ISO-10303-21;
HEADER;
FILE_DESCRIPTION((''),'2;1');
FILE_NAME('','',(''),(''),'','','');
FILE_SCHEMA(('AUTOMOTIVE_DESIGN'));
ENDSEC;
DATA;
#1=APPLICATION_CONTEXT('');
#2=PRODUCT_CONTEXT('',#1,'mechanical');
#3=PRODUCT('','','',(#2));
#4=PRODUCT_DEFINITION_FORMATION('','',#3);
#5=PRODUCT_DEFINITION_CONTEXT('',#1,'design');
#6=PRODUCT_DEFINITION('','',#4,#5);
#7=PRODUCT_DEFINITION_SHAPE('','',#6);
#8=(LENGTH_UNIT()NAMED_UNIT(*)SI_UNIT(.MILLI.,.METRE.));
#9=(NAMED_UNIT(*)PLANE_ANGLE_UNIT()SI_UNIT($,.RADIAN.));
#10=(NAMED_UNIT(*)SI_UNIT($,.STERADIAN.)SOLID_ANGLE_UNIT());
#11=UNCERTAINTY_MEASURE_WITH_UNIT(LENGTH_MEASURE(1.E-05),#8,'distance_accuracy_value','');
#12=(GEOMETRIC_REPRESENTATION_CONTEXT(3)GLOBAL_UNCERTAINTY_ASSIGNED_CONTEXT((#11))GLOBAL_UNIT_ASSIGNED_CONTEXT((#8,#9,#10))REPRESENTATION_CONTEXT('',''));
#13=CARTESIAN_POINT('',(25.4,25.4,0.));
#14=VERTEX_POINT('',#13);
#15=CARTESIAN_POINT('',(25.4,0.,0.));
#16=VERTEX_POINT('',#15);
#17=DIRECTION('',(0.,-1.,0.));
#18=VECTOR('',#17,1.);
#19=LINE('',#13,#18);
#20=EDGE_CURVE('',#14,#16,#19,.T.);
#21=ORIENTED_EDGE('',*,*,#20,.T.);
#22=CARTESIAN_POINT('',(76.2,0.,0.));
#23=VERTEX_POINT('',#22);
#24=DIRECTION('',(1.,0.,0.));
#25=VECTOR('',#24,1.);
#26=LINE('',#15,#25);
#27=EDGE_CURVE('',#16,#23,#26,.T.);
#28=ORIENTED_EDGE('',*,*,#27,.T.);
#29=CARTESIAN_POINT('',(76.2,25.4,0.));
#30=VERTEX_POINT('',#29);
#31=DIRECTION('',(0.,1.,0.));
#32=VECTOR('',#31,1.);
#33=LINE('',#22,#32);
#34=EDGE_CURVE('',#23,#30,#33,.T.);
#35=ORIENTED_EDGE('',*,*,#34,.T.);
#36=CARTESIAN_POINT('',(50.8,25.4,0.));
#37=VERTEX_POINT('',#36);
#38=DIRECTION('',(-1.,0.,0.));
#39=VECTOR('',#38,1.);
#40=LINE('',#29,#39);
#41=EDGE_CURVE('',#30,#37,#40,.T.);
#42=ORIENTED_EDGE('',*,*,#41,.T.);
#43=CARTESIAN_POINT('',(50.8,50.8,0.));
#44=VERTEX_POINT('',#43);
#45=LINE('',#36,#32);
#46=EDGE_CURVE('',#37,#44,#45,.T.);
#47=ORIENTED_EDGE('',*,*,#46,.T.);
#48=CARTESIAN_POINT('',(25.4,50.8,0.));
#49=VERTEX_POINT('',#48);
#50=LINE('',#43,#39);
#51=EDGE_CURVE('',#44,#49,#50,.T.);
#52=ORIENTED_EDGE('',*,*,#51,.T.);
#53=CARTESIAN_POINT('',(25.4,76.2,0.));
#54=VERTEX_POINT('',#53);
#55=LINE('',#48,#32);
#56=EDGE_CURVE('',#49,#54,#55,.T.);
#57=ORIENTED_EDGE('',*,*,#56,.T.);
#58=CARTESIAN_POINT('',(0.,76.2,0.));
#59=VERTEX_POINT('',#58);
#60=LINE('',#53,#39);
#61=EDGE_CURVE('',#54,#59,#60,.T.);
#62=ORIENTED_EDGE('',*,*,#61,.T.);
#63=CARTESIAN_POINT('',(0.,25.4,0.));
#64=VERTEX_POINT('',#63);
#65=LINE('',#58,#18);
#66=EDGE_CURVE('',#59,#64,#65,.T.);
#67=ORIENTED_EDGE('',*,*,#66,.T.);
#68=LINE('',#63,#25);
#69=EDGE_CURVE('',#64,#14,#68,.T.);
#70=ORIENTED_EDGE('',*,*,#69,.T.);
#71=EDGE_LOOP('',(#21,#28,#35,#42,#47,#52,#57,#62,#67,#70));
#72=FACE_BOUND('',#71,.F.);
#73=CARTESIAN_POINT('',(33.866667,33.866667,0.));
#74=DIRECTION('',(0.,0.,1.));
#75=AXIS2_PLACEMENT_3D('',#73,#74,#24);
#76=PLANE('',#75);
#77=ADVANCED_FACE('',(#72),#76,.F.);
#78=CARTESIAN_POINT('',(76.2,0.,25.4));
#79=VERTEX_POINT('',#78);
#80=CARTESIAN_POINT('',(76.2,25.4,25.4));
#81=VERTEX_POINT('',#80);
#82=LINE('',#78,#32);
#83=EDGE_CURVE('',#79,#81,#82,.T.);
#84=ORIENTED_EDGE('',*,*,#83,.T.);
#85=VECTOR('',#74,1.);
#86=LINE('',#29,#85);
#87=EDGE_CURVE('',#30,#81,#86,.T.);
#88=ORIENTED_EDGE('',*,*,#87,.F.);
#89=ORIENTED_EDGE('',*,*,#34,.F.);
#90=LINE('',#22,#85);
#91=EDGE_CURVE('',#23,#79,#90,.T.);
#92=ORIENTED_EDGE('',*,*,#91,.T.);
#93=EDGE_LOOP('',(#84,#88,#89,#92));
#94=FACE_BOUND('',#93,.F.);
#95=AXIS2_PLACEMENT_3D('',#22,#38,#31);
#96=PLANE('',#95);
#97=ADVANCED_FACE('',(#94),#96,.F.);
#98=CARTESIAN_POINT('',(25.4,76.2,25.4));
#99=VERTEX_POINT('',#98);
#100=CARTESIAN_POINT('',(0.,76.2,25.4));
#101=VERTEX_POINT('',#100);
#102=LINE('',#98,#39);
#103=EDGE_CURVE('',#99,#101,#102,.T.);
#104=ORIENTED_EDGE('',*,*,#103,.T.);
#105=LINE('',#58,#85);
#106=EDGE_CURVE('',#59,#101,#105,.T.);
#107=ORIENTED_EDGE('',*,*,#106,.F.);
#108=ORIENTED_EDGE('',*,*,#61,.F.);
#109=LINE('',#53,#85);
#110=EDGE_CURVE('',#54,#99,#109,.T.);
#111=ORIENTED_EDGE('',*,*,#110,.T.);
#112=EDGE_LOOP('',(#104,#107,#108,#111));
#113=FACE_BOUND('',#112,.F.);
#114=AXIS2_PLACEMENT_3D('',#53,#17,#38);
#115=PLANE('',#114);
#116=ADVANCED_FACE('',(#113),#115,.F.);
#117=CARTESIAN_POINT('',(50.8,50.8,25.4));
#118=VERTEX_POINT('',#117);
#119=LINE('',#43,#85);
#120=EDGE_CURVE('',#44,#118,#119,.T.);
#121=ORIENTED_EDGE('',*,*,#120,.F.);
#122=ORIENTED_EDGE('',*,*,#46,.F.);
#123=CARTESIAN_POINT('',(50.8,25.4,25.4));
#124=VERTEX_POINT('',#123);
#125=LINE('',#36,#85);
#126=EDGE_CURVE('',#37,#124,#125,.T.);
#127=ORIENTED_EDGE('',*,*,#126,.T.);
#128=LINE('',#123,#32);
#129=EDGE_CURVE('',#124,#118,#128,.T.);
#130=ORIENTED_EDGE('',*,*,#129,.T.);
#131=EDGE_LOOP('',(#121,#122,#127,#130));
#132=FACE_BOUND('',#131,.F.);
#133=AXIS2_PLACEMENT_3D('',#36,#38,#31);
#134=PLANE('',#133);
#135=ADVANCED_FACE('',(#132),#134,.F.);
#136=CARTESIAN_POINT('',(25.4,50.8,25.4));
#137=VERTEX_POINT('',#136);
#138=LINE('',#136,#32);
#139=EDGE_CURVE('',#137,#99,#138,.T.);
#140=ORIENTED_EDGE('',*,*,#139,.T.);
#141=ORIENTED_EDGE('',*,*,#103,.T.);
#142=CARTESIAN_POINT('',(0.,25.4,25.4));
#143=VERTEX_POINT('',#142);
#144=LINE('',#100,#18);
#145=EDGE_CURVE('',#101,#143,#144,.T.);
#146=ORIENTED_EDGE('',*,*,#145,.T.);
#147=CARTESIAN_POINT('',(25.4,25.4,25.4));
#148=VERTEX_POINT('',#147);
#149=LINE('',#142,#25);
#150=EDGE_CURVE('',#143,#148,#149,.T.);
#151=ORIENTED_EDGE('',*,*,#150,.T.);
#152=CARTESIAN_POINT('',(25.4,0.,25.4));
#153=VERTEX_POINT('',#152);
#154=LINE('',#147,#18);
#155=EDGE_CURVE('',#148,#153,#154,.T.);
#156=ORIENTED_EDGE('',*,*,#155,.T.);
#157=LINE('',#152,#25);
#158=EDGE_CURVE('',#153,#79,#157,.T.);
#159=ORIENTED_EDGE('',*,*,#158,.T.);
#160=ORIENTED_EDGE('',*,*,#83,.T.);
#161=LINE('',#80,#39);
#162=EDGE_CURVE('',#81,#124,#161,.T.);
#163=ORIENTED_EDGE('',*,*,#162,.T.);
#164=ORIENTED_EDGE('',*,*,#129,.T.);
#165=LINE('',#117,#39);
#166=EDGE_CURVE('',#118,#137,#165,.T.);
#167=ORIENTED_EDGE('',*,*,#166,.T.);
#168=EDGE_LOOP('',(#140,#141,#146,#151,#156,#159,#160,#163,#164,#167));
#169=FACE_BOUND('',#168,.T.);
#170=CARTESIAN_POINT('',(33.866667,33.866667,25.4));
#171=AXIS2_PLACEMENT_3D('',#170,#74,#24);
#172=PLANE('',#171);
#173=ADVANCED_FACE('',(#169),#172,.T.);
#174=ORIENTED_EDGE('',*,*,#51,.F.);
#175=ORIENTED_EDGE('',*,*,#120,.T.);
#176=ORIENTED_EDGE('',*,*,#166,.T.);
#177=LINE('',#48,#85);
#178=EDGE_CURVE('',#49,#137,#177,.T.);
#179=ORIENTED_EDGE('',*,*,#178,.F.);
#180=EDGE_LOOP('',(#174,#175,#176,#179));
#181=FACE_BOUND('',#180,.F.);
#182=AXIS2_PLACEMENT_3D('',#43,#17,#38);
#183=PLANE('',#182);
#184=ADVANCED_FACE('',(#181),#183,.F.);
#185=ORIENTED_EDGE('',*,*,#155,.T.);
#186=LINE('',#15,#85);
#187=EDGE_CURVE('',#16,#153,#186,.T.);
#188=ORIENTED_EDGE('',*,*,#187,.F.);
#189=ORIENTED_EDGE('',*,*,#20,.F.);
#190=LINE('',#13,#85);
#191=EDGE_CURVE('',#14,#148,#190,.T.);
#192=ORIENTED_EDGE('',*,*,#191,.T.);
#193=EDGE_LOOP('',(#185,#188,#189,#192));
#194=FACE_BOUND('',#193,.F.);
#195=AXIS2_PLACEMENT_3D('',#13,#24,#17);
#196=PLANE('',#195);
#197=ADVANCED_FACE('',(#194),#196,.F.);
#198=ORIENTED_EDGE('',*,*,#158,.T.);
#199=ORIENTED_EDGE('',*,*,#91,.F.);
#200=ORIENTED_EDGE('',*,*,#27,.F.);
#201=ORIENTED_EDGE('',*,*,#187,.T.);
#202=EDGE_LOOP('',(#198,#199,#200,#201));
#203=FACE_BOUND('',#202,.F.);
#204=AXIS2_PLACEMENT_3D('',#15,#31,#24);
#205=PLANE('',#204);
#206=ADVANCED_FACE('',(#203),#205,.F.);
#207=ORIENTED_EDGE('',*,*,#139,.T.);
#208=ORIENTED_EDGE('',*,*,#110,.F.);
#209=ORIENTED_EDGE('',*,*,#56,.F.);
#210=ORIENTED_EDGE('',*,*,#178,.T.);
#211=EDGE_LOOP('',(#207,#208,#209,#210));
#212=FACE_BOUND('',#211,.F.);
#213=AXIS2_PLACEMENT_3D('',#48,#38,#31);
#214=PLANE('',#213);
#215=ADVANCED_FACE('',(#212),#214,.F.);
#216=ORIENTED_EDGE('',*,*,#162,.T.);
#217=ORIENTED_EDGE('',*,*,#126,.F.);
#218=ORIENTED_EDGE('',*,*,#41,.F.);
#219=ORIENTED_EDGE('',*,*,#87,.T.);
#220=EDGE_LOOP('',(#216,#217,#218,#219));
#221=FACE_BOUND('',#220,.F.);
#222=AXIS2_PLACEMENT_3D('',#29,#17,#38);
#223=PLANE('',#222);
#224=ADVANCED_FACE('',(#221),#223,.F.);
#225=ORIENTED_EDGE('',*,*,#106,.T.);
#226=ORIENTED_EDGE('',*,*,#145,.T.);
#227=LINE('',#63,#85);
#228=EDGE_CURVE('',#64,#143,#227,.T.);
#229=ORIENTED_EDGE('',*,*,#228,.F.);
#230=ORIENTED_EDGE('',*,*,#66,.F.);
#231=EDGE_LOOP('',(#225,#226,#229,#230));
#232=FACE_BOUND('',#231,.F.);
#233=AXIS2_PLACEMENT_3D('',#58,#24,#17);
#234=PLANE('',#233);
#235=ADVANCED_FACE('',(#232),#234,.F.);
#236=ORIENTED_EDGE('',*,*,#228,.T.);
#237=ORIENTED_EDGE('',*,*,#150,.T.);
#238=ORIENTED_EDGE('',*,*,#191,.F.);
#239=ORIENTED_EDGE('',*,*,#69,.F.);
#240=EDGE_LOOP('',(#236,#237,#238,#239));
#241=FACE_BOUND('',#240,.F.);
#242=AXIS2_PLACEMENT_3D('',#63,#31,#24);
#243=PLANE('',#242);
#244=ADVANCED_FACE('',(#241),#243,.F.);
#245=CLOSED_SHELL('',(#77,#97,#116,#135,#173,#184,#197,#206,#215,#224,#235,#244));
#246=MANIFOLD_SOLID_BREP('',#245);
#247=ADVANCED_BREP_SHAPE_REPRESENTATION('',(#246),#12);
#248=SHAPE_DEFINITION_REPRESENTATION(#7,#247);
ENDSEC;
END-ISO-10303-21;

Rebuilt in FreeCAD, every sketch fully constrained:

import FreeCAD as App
import Part
import Sketcher
Q = App.Units.Quantity


def add_polygon(sketch, points):
    """Adds a closed chain of lines whose ends are joined by coincident constraints."""
    first, n = sketch.GeometryCount, len(points)
    for a, b in zip(points, points[1:] + points[:1]):
        sketch.addGeometry(Part.LineSegment(App.Vector(*a, 0), App.Vector(*b, 0)), False)
    for i in range(n):
        sketch.addConstraint(Sketcher.Constraint("Coincident", first + i, 2, first + (i + 1) % n, 1))

doc = App.newDocument("Part")
body = doc.addObject("PartDesign::Body", "Body")

sketch1 = body.newObject("Sketcher::SketchObject", "Sketch")
sketch1.AttachmentSupport = (doc.getObject("XY_Plane"), [""])
sketch1.MapMode = "FlatFace"
add_polygon(sketch1, [(76, 0), (76, 25), (51, 25), (51, 51), (25, 51), (25, 76), (0, 76), (0, 25), (25, 25), (25, 0)])
sketch1.addConstraint(Sketcher.Constraint("Vertical", 0))
sketch1.addConstraint(Sketcher.Constraint("Horizontal", 1))
sketch1.addConstraint(Sketcher.Constraint("Vertical", 2))
sketch1.addConstraint(Sketcher.Constraint("Horizontal", 3))
sketch1.addConstraint(Sketcher.Constraint("Vertical", 4))
sketch1.addConstraint(Sketcher.Constraint("Horizontal", 5))
sketch1.addConstraint(Sketcher.Constraint("Vertical", 6))
sketch1.addConstraint(Sketcher.Constraint("Horizontal", 7))
sketch1.addConstraint(Sketcher.Constraint("Vertical", 8))
sketch1.addConstraint(Sketcher.Constraint("Horizontal", 9))
sketch1.addConstraint(Sketcher.Constraint("PointOnObject", 5, 2, -2))
sketch1.addConstraint(Sketcher.Constraint("PointOnObject", 8, 2, -1))
sketch1.addConstraint(Sketcher.Constraint("Horizontal", 1, 2, 6, 2))
sketch1.addConstraint(Sketcher.Constraint("Vertical", 4, 2, 7, 2))
sketch1.addConstraint(Sketcher.Constraint("Equal", 1, 3))
sketch1.addConstraint(Sketcher.Constraint("Equal", 3, 5))
sketch1.addConstraint(Sketcher.Constraint("Equal", 7, 0))
sketch1.addConstraint(Sketcher.Constraint("Equal", 0, 2))
sketch1.addConstraint(Sketcher.Constraint("Equal", 2, 4))
sketch1.addConstraint(Sketcher.Constraint("DistanceX", 1, 2, 1, 1, Q("1 in")))
pad1 = body.newObject("PartDesign::Pad", "Pad")
pad1.Profile = sketch1
pad1.Length = Q("1 in")

doc.recompute()
